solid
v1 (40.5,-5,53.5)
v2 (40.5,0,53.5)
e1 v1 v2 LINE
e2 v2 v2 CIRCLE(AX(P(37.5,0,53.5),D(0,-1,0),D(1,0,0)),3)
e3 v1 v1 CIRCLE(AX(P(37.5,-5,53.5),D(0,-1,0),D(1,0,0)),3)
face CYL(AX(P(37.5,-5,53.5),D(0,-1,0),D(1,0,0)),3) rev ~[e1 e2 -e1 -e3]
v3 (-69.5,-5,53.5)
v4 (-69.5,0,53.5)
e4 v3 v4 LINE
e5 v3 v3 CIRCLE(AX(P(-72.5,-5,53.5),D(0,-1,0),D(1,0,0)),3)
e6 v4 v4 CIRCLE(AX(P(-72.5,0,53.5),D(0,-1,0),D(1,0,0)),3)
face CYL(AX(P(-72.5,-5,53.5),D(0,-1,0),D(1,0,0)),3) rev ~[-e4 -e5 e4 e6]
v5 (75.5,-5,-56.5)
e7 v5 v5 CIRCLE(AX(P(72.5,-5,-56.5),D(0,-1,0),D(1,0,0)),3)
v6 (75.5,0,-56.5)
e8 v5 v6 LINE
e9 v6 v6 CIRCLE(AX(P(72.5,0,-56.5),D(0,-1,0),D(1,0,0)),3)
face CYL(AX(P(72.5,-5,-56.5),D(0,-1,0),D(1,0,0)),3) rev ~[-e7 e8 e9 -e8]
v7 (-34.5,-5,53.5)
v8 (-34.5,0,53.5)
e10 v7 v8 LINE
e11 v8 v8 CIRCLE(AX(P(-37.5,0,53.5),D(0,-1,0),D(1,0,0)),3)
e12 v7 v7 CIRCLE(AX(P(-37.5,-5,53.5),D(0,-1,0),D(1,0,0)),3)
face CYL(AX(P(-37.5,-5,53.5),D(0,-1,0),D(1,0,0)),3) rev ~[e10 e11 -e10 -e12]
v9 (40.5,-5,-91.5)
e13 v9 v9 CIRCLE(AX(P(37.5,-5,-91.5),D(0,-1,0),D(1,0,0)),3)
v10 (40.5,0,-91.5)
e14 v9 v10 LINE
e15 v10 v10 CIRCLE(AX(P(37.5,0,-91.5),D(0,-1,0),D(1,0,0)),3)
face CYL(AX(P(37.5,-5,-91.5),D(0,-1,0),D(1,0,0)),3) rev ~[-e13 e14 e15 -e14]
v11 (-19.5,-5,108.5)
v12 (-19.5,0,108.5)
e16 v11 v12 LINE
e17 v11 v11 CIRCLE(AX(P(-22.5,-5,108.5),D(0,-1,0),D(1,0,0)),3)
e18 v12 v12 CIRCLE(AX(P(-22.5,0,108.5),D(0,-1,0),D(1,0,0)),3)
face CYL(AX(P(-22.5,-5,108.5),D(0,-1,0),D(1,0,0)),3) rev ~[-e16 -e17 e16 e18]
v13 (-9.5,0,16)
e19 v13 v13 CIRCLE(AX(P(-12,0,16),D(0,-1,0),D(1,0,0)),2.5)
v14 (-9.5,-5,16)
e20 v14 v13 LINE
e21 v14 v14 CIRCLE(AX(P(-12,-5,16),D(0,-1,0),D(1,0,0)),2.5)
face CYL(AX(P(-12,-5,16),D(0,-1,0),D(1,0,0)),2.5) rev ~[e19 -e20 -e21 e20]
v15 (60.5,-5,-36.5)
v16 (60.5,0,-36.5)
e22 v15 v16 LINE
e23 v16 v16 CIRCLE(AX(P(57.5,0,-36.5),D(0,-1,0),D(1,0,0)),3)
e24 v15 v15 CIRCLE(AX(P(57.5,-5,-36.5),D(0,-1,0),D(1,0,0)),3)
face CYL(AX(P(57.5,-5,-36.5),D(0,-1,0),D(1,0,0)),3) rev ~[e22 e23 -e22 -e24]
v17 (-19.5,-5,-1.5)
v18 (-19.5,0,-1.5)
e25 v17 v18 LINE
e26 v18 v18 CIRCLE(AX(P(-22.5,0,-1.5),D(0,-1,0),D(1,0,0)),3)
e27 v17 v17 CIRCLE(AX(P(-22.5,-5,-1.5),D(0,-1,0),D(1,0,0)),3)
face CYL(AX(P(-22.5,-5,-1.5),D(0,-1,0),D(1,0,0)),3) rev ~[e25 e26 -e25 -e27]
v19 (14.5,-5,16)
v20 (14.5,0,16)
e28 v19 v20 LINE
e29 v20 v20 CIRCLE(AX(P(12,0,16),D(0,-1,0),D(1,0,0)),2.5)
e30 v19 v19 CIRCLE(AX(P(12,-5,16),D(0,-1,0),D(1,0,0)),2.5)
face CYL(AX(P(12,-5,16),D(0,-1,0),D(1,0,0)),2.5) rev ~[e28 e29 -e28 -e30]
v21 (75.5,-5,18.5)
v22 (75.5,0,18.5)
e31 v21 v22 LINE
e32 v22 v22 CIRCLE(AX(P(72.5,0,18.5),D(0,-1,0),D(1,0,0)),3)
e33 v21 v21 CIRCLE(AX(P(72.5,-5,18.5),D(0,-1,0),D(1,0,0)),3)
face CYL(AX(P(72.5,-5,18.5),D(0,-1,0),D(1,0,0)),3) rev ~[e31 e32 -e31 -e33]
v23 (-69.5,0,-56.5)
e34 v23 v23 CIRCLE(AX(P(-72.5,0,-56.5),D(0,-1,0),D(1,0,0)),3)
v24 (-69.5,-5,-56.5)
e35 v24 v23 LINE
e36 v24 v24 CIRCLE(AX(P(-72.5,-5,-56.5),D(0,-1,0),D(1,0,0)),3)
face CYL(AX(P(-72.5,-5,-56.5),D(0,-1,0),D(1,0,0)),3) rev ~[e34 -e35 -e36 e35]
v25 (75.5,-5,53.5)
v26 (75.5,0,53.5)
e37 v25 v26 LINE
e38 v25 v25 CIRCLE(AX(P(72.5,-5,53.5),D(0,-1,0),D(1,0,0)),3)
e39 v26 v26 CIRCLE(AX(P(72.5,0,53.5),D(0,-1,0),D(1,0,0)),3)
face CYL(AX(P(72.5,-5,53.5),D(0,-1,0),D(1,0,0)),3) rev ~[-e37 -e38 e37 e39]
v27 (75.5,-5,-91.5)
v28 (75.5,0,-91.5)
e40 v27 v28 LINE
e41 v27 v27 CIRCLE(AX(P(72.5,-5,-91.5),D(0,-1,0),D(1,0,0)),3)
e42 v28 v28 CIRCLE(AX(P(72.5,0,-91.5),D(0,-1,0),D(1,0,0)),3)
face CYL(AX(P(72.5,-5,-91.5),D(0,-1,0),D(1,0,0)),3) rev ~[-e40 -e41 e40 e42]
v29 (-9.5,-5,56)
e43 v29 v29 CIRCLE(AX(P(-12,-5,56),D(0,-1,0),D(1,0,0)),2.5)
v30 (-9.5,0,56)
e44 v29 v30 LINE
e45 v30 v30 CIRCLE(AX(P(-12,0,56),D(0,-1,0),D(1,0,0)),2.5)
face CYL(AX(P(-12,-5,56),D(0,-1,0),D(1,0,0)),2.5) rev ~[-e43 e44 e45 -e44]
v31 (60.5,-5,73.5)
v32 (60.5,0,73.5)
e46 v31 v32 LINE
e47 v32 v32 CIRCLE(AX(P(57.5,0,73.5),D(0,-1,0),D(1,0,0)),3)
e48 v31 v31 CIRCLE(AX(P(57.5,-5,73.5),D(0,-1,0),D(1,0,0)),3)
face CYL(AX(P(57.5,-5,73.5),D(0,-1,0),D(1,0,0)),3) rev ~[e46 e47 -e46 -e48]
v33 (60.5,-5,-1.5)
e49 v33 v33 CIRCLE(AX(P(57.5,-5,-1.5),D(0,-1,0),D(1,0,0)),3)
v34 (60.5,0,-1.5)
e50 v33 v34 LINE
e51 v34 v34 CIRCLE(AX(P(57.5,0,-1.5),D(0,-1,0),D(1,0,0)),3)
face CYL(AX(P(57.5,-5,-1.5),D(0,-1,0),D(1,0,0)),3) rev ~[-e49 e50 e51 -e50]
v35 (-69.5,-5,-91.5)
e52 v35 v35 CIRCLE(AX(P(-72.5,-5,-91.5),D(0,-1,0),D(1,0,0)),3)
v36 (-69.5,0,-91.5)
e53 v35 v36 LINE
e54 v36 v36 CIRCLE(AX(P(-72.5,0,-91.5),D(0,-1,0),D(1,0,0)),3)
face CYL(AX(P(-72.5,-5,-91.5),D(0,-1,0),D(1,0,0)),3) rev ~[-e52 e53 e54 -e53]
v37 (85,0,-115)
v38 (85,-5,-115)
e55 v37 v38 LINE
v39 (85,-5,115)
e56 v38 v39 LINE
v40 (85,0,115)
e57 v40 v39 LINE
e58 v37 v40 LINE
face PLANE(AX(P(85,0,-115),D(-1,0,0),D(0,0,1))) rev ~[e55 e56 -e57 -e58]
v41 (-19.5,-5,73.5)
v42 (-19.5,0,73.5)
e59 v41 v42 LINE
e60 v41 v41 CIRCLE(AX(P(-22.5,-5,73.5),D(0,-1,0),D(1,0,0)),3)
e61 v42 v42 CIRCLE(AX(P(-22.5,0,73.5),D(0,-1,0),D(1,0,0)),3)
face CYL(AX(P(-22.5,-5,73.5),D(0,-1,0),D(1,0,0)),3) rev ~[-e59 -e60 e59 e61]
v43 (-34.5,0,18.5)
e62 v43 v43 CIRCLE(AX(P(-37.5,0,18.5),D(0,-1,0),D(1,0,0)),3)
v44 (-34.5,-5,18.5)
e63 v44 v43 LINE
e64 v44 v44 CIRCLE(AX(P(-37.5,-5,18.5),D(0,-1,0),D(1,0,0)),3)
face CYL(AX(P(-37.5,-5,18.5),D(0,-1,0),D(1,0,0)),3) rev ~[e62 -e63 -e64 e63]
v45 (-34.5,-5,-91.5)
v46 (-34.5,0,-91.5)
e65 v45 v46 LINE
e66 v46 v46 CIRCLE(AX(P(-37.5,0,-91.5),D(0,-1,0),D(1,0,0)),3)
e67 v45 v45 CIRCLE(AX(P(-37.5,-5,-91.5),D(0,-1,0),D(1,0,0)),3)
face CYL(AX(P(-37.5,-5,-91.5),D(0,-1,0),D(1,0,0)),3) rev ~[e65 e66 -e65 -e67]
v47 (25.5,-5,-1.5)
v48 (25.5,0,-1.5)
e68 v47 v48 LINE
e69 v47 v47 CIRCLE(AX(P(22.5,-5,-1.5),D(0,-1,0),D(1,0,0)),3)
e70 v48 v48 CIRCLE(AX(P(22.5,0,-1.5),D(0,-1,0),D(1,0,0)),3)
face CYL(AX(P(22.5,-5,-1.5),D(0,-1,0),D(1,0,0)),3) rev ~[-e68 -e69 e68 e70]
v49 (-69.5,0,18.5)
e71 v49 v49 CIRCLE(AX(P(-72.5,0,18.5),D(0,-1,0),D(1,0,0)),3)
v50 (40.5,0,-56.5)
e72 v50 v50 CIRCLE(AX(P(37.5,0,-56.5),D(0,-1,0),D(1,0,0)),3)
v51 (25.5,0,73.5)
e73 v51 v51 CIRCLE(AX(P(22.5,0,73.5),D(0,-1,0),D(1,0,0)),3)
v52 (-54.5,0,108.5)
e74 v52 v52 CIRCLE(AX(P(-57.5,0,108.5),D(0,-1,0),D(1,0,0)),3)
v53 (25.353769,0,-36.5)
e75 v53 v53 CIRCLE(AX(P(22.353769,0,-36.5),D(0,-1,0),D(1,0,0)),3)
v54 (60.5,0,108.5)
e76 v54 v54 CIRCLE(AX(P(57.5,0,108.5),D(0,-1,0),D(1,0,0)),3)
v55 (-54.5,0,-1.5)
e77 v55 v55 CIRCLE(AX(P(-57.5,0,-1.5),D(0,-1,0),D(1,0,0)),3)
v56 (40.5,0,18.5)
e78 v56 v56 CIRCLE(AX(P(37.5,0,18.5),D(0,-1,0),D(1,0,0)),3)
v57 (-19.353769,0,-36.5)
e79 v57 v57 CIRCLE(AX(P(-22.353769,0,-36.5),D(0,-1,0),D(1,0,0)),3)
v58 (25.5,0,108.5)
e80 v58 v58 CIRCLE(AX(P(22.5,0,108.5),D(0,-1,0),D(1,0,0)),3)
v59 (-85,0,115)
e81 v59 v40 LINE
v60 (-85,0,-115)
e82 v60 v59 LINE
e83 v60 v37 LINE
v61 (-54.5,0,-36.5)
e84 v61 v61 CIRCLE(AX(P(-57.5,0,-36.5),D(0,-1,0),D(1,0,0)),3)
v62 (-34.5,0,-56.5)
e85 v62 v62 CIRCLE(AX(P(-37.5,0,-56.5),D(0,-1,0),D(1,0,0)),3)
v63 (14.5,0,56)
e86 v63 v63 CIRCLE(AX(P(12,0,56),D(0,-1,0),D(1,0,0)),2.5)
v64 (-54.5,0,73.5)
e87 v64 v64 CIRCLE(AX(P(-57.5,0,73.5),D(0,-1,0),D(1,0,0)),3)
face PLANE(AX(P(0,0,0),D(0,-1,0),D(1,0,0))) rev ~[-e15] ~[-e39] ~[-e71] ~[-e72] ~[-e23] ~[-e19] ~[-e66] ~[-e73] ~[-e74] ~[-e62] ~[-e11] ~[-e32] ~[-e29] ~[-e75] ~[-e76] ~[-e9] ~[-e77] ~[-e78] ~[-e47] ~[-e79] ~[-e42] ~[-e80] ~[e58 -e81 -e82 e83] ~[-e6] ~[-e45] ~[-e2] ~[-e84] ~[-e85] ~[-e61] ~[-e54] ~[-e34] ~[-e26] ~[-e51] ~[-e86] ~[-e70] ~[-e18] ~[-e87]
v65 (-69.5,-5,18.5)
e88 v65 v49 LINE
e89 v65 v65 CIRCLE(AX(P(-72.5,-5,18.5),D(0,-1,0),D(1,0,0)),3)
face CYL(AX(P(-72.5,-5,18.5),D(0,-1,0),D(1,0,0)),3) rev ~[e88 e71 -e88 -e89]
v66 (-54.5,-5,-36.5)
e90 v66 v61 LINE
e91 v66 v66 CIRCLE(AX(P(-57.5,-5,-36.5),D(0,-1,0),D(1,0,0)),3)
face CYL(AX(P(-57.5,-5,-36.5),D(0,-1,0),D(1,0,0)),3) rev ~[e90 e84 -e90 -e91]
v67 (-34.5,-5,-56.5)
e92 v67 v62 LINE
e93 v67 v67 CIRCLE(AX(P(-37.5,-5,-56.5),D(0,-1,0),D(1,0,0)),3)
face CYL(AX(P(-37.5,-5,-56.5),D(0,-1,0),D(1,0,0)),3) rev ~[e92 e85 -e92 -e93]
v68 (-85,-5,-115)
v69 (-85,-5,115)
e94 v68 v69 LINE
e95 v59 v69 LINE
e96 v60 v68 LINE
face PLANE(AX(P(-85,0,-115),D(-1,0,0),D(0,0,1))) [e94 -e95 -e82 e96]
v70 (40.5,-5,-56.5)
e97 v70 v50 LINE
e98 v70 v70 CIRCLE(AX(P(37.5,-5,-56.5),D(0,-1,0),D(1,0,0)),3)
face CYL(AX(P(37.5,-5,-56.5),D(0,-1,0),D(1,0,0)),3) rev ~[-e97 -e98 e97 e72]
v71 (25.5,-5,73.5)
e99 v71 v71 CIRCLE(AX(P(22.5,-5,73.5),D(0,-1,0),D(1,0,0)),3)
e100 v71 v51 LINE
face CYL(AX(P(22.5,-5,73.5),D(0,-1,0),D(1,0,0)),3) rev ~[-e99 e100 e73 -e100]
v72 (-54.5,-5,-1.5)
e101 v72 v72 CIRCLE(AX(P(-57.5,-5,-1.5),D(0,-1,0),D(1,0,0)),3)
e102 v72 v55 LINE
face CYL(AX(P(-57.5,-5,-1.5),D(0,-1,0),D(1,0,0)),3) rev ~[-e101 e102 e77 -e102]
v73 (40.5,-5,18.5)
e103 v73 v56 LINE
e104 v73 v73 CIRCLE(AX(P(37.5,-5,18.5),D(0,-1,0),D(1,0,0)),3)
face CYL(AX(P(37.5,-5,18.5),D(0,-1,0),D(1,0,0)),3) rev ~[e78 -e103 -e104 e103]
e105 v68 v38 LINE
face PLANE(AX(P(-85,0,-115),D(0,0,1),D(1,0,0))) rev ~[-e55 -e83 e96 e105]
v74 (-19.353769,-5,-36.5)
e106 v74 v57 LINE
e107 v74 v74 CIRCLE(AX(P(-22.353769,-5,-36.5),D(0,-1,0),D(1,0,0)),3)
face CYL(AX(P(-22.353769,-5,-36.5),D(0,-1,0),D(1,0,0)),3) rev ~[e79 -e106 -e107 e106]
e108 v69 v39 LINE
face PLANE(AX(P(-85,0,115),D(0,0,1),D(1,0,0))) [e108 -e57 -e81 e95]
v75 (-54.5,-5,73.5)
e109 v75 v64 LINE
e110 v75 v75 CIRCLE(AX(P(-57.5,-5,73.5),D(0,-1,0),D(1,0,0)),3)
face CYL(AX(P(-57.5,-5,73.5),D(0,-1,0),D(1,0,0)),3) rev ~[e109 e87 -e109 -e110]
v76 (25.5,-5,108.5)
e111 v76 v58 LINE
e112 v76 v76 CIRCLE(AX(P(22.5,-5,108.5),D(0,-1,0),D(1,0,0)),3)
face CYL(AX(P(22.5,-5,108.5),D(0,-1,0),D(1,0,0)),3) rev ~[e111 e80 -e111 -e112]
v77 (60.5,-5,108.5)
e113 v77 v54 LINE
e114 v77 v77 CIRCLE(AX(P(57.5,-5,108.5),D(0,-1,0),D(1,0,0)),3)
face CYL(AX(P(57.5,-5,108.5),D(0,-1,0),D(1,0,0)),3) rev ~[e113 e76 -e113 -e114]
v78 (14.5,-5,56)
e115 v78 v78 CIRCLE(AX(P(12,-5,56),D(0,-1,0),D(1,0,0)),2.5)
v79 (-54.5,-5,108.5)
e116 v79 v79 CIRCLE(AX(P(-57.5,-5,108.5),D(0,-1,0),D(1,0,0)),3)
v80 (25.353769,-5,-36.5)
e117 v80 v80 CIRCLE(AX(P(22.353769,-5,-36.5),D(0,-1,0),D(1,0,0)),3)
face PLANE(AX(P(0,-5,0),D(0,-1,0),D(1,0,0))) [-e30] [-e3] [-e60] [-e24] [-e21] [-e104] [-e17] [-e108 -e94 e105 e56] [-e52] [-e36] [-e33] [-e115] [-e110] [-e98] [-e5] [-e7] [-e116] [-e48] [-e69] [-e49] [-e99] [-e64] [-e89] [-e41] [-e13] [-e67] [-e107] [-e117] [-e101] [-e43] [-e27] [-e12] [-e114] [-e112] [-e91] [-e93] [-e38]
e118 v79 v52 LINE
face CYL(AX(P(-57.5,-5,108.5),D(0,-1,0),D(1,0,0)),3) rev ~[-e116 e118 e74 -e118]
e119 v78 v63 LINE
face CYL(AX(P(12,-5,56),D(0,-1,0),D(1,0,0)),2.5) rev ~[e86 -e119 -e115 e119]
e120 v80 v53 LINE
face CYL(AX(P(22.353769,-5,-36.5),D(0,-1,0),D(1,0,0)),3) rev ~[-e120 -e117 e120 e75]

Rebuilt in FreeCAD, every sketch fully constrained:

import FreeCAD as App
import Part
import Sketcher
from FreeCAD import Vector

doc = App.newDocument("Part")
body = doc.addObject("PartDesign::Body", "Body")

# Sketch on XZ plane
sketch1 = doc.addObject("Sketcher::SketchObject", "Sketch")
body.addObject(sketch1)
sketch1.AttachmentSupport = (doc.XZ_Plane, [""])
sketch1.MapMode = "FlatFace"
sketch1.addGeometry([
    Part.LineSegment(Vector(-85, 115, 0), Vector(-85, -115, 0)),
    Part.LineSegment(Vector(-85, -115, 0), Vector(85, -115, 0)),
    Part.LineSegment(Vector(85, -115, 0), Vector(85, 115, 0)),
    Part.LineSegment(Vector(85, 115, 0), Vector(-85, 115, 0)),
], False)
sketch1.addConstraint([
    Sketcher.Constraint("Coincident", 0, 2, 1, 1),
    Sketcher.Constraint("Coincident", 1, 2, 2, 1),
    Sketcher.Constraint("Coincident", 2, 2, 3, 1),
    Sketcher.Constraint("Coincident", 3, 2, 0, 1),
    Sketcher.Constraint("Vertical", 0),
    Sketcher.Constraint("Horizontal", 1),
    Sketcher.Constraint("Vertical", 2),
    Sketcher.Constraint("Horizontal", 3),
    Sketcher.Constraint("Symmetric", 0, 2, 2, 2, -1, 1),
    Sketcher.Constraint("DistanceX", 1, 1, 1, 2, 170.0),
    Sketcher.Constraint("DistanceY", 0, 2, 0, 1, 230.0),
])
pad1 = doc.addObject("PartDesign::Pad", "Pad")
body.addObject(pad1)
pad1.Profile = sketch1
pad1.Length = 5

# Sketch on XZ plane
sketch2 = doc.addObject("Sketcher::SketchObject", "Sketch001")
body.addObject(sketch2)
sketch2.AttachmentSupport = (doc.XZ_Plane, [""])
sketch2.MapMode = "FlatFace"
sketch2.AttachmentOffset = App.Placement(Vector(0, 0, 5), App.Rotation())
sketch2.addGeometry([
    Part.Circle(Vector(-57.5, 108.5, 0), Vector(0, 0, 1), 3),  # 0
    Part.Circle(Vector(-22.5, 108.5, 0), Vector(0, 0, 1), 3),  # 1
    Part.Circle(Vector(-57.5, 73.5, 0), Vector(0, 0, 1), 3),  # 2
    Part.Circle(Vector(-22.5, 73.5, 0), Vector(0, 0, 1), 3),  # 3
    Part.Circle(Vector(22.5, 108.5, 0), Vector(0, 0, 1), 3),  # 4
    Part.Circle(Vector(22.5, 73.5, 0), Vector(0, 0, 1), 3),  # 5
    Part.Circle(Vector(57.5, 73.5, 0), Vector(0, 0, 1), 3),  # 6
    Part.Circle(Vector(57.5, 108.5, 0), Vector(0, 0, 1), 3),  # 7
    Part.Circle(Vector(57.5, -1.5, 0), Vector(0, 0, 1), 3),  # 8
    Part.Circle(Vector(22.5, -1.5, 0), Vector(0, 0, 1), 3),  # 9
    Part.Circle(Vector(22.4, -36.5, 0), Vector(0, 0, 1), 3),  # 10
    Part.Circle(Vector(57.5, -36.5, 0), Vector(0, 0, 1), 3),  # 11
    Part.Circle(Vector(-22.5, -1.5, 0), Vector(0, 0, 1), 3),  # 12
    Part.Circle(Vector(-57.5, -1.5, 0), Vector(0, 0, 1), 3),  # 13
    Part.Circle(Vector(-22.4, -36.5, 0), Vector(0, 0, 1), 3),  # 14
    Part.Circle(Vector(-57.5, -36.5, 0), Vector(0, 0, 1), 3),  # 15
], False)
sketch2.addConstraint([
    Sketcher.Constraint("Equal", 0, 1),
    Sketcher.Constraint("Equal", 1, 2),
    Sketcher.Constraint("Equal", 2, 3),
    Sketcher.Constraint("Equal", 3, 4),
    Sketcher.Constraint("Equal", 4, 5),
    Sketcher.Constraint("Equal", 5, 6),
    Sketcher.Constraint("Equal", 6, 7),
    Sketcher.Constraint("Equal", 7, 8),
    Sketcher.Constraint("Equal", 8, 9),
    Sketcher.Constraint("Equal", 9, 10),
    Sketcher.Constraint("Equal", 10, 11),
    Sketcher.Constraint("Equal", 11, 12),
    Sketcher.Constraint("Equal", 12, 13),
    Sketcher.Constraint("Equal", 13, 14),
    Sketcher.Constraint("Equal", 14, 15),
    Sketcher.Constraint("Symmetric", 1, 3, 4, 3, -2),
    Sketcher.Constraint("Symmetric", 3, 3, 5, 3, -2),
    Sketcher.Constraint("Symmetric", 2, 3, 6, 3, -2),
    Sketcher.Constraint("Symmetric", 0, 3, 7, 3, -2),
    Sketcher.Constraint("Symmetric", 9, 3, 12, 3, -2),
    Sketcher.Constraint("Symmetric", 8, 3, 13, 3, -2),
    Sketcher.Constraint("Symmetric", 10, 3, 14, 3, -2),
    Sketcher.Constraint("Symmetric", 11, 3, 15, 3, -2),
    Sketcher.Constraint("Horizontal", 0, 3, 1, 3),
    Sketcher.Constraint("Horizontal", 2, 3, 3, 3),
    Sketcher.Constraint("Horizontal", 8, 3, 9, 3),
    Sketcher.Constraint("Horizontal", 10, 3, 11, 3),
    Sketcher.Constraint("Vertical", 0, 3, 2, 3),
    Sketcher.Constraint("Vertical", 1, 3, 3, 3),
    Sketcher.Constraint("Vertical", 7, 3, 8, 3),
    Sketcher.Constraint("Vertical", 5, 3, 9, 3),
    Sketcher.Constraint("Vertical", 8, 3, 11, 3),
    Sketcher.Constraint("Diameter", 0, 6.0),
    Sketcher.Constraint("DistanceX", 0, 3, 1, 3, 35.0),
    Sketcher.Constraint("DistanceY", 2, 3, 0, 3, 35.0),
    Sketcher.Constraint("DistanceX", 1, 3, 4, 3, 45.0),
    Sketcher.Constraint("DistanceY", 8, 3, 6, 3, 75.0),
    Sketcher.Constraint("DistanceY", 10, 3, 9, 3, 35.0),
    Sketcher.Constraint("DistanceY", -1, 1, 0, 3, 108.5),
    Sketcher.Constraint("DistanceX", -1, 1, 10, 3, 22.353769),
])
pocket1 = doc.addObject("PartDesign::Pocket", "Pocket")
body.addObject(pocket1)
pocket1.Profile = sketch2
pocket1.Length = 5

# Sketch on XZ plane
sketch3 = doc.addObject("Sketcher::SketchObject", "Sketch002")
body.addObject(sketch3)
sketch3.AttachmentSupport = (doc.XZ_Plane, [""])
sketch3.MapMode = "FlatFace"
sketch3.AttachmentOffset = App.Placement(Vector(0, 0, 5), App.Rotation())
sketch3.addGeometry([
    Part.Circle(Vector(-12, 56, 0), Vector(0, 0, 1), 2.5),
    Part.Circle(Vector(-12, 16, 0), Vector(0, 0, 1), 2.5),
    Part.Circle(Vector(12, 56, 0), Vector(0, 0, 1), 2.5),
    Part.Circle(Vector(12, 16, 0), Vector(0, 0, 1), 2.5),
], False)
sketch3.addConstraint([
    Sketcher.Constraint("Equal", 0, 1),
    Sketcher.Constraint("Equal", 1, 2),
    Sketcher.Constraint("Equal", 2, 3),
    Sketcher.Constraint("Symmetric", 0, 3, 2, 3, -2),
    Sketcher.Constraint("Symmetric", 1, 3, 3, 3, -2),
    Sketcher.Constraint("Vertical", 0, 3, 1, 3),
    Sketcher.Constraint("Diameter", 0, 5.0),
    Sketcher.Constraint("DistanceX", 0, 3, -1, 1, 12.0),
    Sketcher.Constraint("DistanceY", -1, 1, 0, 3, 56.0),
    Sketcher.Constraint("DistanceY", -1, 1, 1, 3, 16.0),
])
pocket2 = doc.addObject("PartDesign::Pocket", "Pocket001")
body.addObject(pocket2)
pocket2.Profile = sketch3
pocket2.Length = 5

# Sketch on XZ plane
sketch4 = doc.addObject("Sketcher::SketchObject", "Sketch003")
body.addObject(sketch4)
sketch4.AttachmentSupport = (doc.XZ_Plane, [""])
sketch4.MapMode = "FlatFace"
sketch4.AttachmentOffset = App.Placement(Vector(0, 0, 5), App.Rotation())
sketch4.addGeometry([
    Part.Circle(Vector(37.5, 53.5, 0), Vector(0, 0, 1), 3),  # 0
    Part.Circle(Vector(72.5, 53.5, 0), Vector(0, 0, 1), 3),  # 1
    Part.Circle(Vector(37.5, 18.5, 0), Vector(0, 0, 1), 3),  # 2
    Part.Circle(Vector(72.5, 18.5, 0), Vector(0, 0, 1), 3),  # 3
    Part.Circle(Vector(-37.5, 53.5, 0), Vector(0, 0, 1), 3),  # 4
    Part.Circle(Vector(-72.5, 53.5, 0), Vector(0, 0, 1), 3),  # 5
    Part.Circle(Vector(-37.5, 18.5, 0), Vector(0, 0, 1), 3),  # 6
    Part.Circle(Vector(-72.5, 18.5, 0), Vector(0, 0, 1), 3),  # 7
], False)
sketch4.addConstraint([
    Sketcher.Constraint("Equal", 0, 1),
    Sketcher.Constraint("Equal", 1, 2),
    Sketcher.Constraint("Equal", 2, 3),
    Sketcher.Constraint("Equal", 3, 4),
    Sketcher.Constraint("Equal", 4, 5),
    Sketcher.Constraint("Equal", 5, 6),
    Sketcher.Constraint("Equal", 6, 7),
    Sketcher.Constraint("Symmetric", 0, 3, 4, 3, -2),
    Sketcher.Constraint("Symmetric", 1, 3, 5, 3, -2),
    Sketcher.Constraint("Symmetric", 2, 3, 6, 3, -2),
    Sketcher.Constraint("Symmetric", 3, 3, 7, 3, -2),
    Sketcher.Constraint("Horizontal", 0, 3, 1, 3),
    Sketcher.Constraint("Horizontal", 2, 3, 3, 3),
    Sketcher.Constraint("Vertical", 0, 3, 2, 3),
    Sketcher.Constraint("Vertical", 1, 3, 3, 3),
    Sketcher.Constraint("Diameter", 0, 6.0),
    Sketcher.Constraint("DistanceX", 0, 3, 1, 3, 35.0),
    Sketcher.Constraint("DistanceY", 2, 3, 0, 3, 35.0),
    Sketcher.Constraint("DistanceX", 4, 3, 0, 3, 75.0),
    Sketcher.Constraint("DistanceY", -1, 1, 0, 3, 53.5),
])
pocket3 = doc.addObject("PartDesign::Pocket", "Pocket002")
body.addObject(pocket3)
pocket3.Profile = sketch4
pocket3.Length = 5

# Sketch on XZ plane
sketch5 = doc.addObject("Sketcher::SketchObject", "Sketch004")
body.addObject(sketch5)
sketch5.AttachmentSupport = (doc.XZ_Plane, [""])
sketch5.MapMode = "FlatFace"
sketch5.AttachmentOffset = App.Placement(Vector(0, 0, 5), App.Rotation())
sketch5.addGeometry([
    Part.Circle(Vector(-37.5, -56.5, 0), Vector(0, 0, 1), 3),  # 0
    Part.Circle(Vector(-72.5, -56.5, 0), Vector(0, 0, 1), 3),  # 1
    Part.Circle(Vector(-37.5, -91.5, 0), Vector(0, 0, 1), 3),  # 2
    Part.Circle(Vector(-72.5, -91.5, 0), Vector(0, 0, 1), 3),  # 3
    Part.Circle(Vector(37.5, -56.5, 0), Vector(0, 0, 1), 3),  # 4
    Part.Circle(Vector(72.5, -56.5, 0), Vector(0, 0, 1), 3),  # 5
    Part.Circle(Vector(37.5, -91.5, 0), Vector(0, 0, 1), 3),  # 6
    Part.Circle(Vector(72.5, -91.5, 0), Vector(0, 0, 1), 3),  # 7
], False)
sketch5.addConstraint([
    Sketcher.Constraint("Equal", 0, 1),
    Sketcher.Constraint("Equal", 1, 2),
    Sketcher.Constraint("Equal", 2, 3),
    Sketcher.Constraint("Equal", 3, 4),
    Sketcher.Constraint("Equal", 4, 5),
    Sketcher.Constraint("Equal", 5, 6),
    Sketcher.Constraint("Equal", 6, 7),
    Sketcher.Constraint("Symmetric", 0, 3, 4, 3, -2),
    Sketcher.Constraint("Symmetric", 1, 3, 5, 3, -2),
    Sketcher.Constraint("Symmetric", 2, 3, 6, 3, -2),
    Sketcher.Constraint("Symmetric", 3, 3, 7, 3, -2),
    Sketcher.Constraint("Horizontal", 0, 3, 1, 3),
    Sketcher.Constraint("Horizontal", 2, 3, 3, 3),
    Sketcher.Constraint("Vertical", 0, 3, 2, 3),
    Sketcher.Constraint("Vertical", 1, 3, 3, 3),
    Sketcher.Constraint("Diameter", 0, 6.0),
    Sketcher.Constraint("DistanceX", 1, 3, 0, 3, 35.0),
    Sketcher.Constraint("DistanceY", 2, 3, 0, 3, 35.0),
    Sketcher.Constraint("DistanceX", 0, 3, 4, 3, 75.0),
    Sketcher.Constraint("DistanceY", 0, 3, -1, 1, 56.5),
])
pocket4 = doc.addObject("PartDesign::Pocket", "Pocket003")
body.addObject(pocket4)
pocket4.Profile = sketch5
pocket4.Length = 5

doc.recompute()
